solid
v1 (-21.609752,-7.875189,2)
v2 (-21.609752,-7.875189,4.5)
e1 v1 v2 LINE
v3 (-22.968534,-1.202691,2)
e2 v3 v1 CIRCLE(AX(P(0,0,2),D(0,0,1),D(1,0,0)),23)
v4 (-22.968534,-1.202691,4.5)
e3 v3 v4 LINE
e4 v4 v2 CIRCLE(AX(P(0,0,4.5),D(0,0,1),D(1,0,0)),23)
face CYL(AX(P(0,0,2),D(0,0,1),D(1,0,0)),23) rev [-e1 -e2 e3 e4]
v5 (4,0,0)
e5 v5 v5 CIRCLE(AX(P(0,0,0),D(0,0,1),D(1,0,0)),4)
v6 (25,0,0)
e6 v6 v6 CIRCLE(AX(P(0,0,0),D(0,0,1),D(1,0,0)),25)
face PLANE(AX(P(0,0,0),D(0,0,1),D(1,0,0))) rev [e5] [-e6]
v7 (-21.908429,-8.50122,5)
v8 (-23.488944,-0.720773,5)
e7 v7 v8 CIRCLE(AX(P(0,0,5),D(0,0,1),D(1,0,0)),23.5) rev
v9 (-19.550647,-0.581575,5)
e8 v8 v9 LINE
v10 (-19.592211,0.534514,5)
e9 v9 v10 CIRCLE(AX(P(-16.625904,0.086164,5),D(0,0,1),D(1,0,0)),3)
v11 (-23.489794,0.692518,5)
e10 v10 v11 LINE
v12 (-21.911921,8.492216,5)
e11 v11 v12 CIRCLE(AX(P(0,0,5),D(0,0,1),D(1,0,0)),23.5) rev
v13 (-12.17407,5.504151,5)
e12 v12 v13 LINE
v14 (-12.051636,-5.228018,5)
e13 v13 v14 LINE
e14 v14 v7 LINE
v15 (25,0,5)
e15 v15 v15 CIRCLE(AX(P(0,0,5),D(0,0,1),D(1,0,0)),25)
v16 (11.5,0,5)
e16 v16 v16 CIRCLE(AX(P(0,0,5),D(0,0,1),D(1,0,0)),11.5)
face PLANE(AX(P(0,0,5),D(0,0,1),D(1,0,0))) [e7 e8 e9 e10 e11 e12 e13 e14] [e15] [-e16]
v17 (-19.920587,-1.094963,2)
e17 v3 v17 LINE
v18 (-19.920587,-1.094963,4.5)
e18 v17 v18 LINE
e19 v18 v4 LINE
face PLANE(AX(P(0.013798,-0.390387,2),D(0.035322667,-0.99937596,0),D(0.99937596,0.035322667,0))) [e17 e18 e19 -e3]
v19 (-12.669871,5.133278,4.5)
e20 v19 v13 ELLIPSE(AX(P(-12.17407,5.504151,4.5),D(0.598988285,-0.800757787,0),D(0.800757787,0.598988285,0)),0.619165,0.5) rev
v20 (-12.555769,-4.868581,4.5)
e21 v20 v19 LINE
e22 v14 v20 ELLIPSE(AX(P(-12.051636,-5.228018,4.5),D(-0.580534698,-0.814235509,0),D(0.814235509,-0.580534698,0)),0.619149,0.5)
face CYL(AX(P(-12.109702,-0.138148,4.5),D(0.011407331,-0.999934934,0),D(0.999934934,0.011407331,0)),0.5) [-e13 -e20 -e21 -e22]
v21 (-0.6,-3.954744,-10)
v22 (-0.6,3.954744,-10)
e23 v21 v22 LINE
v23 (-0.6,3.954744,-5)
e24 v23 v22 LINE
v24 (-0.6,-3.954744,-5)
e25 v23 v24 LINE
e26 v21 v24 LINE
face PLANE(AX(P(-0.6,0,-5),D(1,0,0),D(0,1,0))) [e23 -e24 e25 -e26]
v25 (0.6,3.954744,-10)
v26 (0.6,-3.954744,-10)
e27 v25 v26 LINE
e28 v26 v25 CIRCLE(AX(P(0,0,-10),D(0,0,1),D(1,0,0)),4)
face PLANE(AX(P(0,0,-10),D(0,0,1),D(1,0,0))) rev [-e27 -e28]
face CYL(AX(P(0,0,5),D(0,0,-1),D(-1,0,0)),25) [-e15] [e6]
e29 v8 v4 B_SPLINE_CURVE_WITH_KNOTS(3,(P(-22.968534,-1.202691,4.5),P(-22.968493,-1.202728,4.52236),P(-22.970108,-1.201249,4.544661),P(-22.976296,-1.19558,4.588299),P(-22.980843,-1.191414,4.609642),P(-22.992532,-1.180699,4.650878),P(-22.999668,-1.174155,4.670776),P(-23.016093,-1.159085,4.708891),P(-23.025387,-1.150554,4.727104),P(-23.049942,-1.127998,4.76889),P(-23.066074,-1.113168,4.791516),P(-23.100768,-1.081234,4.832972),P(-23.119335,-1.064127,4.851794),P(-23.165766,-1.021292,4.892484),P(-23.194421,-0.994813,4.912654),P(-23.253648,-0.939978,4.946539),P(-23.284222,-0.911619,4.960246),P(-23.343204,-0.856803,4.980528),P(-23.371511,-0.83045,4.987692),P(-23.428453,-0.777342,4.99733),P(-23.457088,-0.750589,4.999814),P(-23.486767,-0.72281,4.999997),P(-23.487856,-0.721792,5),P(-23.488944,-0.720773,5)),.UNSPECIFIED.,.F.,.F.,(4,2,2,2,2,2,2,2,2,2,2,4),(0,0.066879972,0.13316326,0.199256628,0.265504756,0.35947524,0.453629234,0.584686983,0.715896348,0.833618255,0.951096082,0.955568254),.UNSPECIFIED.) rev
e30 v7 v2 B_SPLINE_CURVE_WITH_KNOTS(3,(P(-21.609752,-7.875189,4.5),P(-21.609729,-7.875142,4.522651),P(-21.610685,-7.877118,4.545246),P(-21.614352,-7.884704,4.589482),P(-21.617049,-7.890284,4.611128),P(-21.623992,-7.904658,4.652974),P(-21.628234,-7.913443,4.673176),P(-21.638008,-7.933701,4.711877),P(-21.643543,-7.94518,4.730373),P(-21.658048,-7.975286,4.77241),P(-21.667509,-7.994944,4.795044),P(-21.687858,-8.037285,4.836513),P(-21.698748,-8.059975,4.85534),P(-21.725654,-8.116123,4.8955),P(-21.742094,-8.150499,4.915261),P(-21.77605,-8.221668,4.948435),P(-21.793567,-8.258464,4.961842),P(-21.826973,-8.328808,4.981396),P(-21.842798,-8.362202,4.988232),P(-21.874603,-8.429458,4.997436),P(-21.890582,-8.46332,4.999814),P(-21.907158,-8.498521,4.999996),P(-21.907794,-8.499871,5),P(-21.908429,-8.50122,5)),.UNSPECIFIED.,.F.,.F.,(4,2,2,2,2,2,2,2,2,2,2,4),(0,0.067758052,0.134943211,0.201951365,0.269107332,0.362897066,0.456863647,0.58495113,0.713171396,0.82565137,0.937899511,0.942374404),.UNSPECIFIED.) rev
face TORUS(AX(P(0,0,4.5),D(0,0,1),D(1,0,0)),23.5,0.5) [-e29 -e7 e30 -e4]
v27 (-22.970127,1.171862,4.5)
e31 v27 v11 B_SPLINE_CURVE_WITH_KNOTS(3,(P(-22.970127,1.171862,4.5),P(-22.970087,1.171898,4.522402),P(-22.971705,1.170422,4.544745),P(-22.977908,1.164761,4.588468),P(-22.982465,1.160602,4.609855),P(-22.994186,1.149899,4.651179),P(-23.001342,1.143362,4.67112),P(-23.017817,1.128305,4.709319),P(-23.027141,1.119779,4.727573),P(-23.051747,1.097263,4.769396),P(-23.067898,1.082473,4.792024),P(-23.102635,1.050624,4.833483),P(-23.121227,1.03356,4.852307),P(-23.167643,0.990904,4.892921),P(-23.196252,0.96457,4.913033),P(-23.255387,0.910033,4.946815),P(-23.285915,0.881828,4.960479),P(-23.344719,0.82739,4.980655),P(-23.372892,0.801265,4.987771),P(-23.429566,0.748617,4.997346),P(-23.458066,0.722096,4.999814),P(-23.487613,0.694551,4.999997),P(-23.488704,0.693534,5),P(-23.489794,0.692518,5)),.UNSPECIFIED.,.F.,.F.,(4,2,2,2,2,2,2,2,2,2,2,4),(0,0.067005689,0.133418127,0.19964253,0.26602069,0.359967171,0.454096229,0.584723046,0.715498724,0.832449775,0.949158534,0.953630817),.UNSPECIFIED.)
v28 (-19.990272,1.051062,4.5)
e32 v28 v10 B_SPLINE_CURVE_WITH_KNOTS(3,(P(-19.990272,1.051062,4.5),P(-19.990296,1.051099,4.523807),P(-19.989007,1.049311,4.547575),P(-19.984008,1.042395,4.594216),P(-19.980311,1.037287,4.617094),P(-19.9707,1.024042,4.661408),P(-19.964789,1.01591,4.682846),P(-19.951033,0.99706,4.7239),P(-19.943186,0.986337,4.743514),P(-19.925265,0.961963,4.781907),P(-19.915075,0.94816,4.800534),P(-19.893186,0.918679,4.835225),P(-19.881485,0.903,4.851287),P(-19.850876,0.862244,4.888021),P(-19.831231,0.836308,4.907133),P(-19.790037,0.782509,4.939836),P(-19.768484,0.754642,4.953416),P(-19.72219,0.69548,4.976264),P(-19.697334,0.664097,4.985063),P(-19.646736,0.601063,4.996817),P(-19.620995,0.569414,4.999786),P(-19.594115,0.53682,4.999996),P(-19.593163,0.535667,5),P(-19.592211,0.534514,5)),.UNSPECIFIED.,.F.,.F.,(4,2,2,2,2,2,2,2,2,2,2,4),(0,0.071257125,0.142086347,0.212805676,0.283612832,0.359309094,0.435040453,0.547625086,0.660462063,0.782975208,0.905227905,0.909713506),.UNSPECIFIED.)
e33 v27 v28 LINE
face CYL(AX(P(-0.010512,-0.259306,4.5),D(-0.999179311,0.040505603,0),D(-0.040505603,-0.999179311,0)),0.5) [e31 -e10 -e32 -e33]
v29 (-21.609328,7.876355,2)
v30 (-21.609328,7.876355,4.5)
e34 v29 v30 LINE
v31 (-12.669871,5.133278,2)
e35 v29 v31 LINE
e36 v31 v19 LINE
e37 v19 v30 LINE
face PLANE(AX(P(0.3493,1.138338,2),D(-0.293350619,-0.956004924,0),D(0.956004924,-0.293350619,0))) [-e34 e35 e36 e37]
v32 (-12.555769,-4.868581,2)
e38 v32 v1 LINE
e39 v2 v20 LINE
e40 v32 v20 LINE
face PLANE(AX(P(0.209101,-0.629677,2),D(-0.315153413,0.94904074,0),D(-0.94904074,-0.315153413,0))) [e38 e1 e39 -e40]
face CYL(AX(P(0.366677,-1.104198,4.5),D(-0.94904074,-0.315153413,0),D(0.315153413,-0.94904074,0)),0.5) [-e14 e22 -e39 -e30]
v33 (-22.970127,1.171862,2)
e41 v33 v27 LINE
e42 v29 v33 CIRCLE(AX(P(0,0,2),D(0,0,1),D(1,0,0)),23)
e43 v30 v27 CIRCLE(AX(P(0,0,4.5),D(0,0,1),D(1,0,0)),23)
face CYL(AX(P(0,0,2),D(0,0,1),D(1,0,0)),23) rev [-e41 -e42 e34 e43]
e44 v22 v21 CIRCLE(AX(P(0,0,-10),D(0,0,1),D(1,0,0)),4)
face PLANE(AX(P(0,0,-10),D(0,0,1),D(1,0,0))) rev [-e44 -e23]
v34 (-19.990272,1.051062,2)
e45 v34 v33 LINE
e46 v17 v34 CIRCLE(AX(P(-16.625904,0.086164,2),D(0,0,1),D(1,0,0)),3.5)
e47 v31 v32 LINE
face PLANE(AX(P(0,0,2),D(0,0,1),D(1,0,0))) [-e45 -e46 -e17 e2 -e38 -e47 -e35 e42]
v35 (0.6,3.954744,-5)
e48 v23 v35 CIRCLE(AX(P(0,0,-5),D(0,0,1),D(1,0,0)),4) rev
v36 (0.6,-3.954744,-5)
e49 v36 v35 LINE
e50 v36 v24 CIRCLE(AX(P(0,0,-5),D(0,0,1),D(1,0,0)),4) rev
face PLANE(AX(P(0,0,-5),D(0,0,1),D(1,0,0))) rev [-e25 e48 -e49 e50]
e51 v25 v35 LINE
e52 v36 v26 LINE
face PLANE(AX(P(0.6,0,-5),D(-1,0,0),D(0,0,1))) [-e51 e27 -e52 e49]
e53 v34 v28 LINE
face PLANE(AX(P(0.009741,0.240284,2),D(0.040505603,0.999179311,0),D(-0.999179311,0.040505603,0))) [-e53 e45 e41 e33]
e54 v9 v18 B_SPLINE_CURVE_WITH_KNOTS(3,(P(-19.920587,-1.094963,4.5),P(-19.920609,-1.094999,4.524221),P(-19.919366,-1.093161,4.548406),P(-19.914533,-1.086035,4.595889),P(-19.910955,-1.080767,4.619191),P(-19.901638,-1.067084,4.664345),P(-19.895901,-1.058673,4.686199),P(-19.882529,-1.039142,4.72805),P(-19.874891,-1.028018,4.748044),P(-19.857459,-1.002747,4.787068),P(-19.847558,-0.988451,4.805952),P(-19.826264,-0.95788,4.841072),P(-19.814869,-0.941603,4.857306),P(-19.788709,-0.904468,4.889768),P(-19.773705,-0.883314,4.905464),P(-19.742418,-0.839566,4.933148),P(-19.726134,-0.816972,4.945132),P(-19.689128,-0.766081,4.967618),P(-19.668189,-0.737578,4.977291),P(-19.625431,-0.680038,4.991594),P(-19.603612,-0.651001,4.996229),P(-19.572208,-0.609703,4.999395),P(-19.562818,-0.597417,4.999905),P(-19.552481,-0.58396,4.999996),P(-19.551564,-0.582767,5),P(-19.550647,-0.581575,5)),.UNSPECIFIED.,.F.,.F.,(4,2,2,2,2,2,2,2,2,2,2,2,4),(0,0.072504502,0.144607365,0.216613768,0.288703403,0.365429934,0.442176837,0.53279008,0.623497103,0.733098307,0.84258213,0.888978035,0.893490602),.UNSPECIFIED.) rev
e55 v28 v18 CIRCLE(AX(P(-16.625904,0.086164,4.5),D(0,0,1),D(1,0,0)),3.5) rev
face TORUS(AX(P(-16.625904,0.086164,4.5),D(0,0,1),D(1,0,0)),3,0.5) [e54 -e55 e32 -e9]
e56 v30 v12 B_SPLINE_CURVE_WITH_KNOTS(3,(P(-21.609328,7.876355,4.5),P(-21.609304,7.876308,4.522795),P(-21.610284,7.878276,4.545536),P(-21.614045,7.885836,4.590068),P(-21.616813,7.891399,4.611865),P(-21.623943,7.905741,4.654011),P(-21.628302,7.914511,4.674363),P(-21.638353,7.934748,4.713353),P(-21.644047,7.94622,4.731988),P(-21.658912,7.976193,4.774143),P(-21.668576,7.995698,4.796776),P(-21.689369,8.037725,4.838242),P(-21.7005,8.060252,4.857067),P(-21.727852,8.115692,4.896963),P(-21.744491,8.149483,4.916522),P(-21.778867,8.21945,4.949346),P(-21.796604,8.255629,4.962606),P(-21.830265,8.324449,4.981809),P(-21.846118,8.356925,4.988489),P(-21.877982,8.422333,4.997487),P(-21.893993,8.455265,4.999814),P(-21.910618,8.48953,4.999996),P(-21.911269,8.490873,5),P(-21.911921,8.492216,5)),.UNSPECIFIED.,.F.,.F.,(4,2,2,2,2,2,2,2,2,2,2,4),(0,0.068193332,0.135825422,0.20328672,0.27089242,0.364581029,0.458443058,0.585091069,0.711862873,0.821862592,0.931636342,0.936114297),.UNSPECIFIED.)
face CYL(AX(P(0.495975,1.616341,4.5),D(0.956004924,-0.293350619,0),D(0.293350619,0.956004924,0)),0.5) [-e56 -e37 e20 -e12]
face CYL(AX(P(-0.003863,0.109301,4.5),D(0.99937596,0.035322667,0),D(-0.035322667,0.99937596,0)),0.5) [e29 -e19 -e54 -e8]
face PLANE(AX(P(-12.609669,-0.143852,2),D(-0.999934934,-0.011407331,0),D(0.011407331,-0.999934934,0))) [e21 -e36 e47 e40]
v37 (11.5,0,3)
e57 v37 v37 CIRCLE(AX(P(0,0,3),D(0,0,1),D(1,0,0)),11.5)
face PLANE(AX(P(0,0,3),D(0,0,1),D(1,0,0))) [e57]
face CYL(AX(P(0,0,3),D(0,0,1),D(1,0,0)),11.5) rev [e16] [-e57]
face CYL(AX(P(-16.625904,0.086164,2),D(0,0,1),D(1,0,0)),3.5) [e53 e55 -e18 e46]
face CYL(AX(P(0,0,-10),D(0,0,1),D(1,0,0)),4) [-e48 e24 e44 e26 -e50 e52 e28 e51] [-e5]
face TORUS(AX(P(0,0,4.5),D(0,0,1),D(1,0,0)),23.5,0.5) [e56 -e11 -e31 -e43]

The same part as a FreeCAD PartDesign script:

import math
import FreeCAD as App
import Part
import Sketcher
from FreeCAD import Vector


def edges_at(feature, points):
    """Names of the edges that pass closest to the given points."""
    edges = feature.Shape.Edges
    near = lambda p: min(range(len(edges)), key=lambda i: edges[i].distToShape(Part.Vertex(*p))[0])
    return sorted({f"Edge{near(p) + 1}" for p in points})


def add_polygon(sketch, points):
    """Adds a closed chain of lines whose ends are joined by coincident constraints."""
    first, n = sketch.GeometryCount, len(points)
    for a, b in zip(points, points[1:] + points[:1]):
        sketch.addGeometry(Part.LineSegment(App.Vector(*a, 0), App.Vector(*b, 0)), False)
    for i in range(n):
        sketch.addConstraint(Sketcher.Constraint("Coincident", first + i, 2, first + (i + 1) % n, 1))

doc = App.newDocument("Part")
body = doc.addObject("PartDesign::Body", "Body")

sketch1 = doc.addObject("Sketcher::SketchObject", "Sketch")
body.addObject(sketch1)
sketch1.AttachmentSupport = (doc.XY_Plane, [""])
sketch1.MapMode = "FlatFace"
sketch1.addGeometry(Part.Circle(Vector(0, 0, 0), Vector(0, 0, 1), 25), False)
sketch1.addConstraint(Sketcher.Constraint("Coincident", 0, 3, -1, 1))
sketch1.addConstraint(Sketcher.Constraint("Diameter", 0, 50.0))
pad1 = doc.addObject("PartDesign::Pad", "Pad")
body.addObject(pad1)
pad1.Profile = sketch1
pad1.Length = 5

sketch2 = doc.addObject("Sketcher::SketchObject", "Sketch001")
body.addObject(sketch2)
sketch2.AttachmentSupport = (doc.XY_Plane, [""])
sketch2.MapMode = "FlatFace"
sketch2.AttachmentOffset = App.Placement(Vector(0, 0, 5), App.Rotation())
sketch2.addGeometry(Part.LineSegment(Vector(-19.920587, -1.094963, 0), Vector(-22.968534, -1.202691, 0)), False)
sketch2.addGeometry(Part.ArcOfCircle(Part.Circle(Vector(0, 0, 0), Vector(0, 0, 1), 23), math.radians(-177.002583), math.radians(-159.976866)), False)
sketch2.addGeometry(Part.LineSegment(Vector(-21.609752, -7.875189, 0), Vector(-12.555769, -4.868581, 0)), False)
sketch2.addGeometry(Part.LineSegment(Vector(-12.555769, -4.868581, 0), Vector(-12.669871, 5.133278, 0)), False)
sketch2.addGeometry(Part.LineSegment(Vector(-12.669871, 5.133278, 0), Vector(-21.609328, 7.876355, 0)), False)
sketch2.addGeometry(Part.ArcOfCircle(Part.Circle(Vector(0, 0, 0), Vector(0, 0, 1), 23), math.radians(159.973776), math.radians(177.079486)), False)
sketch2.addGeometry(Part.LineSegment(Vector(-22.970127, 1.171862, 0), Vector(-19.990272, 1.051062, 0)), False)
sketch2.addGeometry(Part.ArcOfCircle(Part.Circle(Vector(-16.625904, 0.086164, 0), Vector(0, 0, 1), 3.5), math.radians(-160.277512), math.radians(163.997157)), False)
sketch2.addConstraint(Sketcher.Constraint("Coincident", 0, 2, 1, 1))
sketch2.addConstraint(Sketcher.Constraint("Coincident", 1, 2, 2, 1))
sketch2.addConstraint(Sketcher.Constraint("Coincident", 2, 2, 3, 1))
sketch2.addConstraint(Sketcher.Constraint("Coincident", 3, 2, 4, 1))
sketch2.addConstraint(Sketcher.Constraint("Coincident", 4, 2, 5, 1))
sketch2.addConstraint(Sketcher.Constraint("Coincident", 5, 2, 6, 1))
sketch2.addConstraint(Sketcher.Constraint("Coincident", 6, 2, 7, 2))
sketch2.addConstraint(Sketcher.Constraint("Coincident", 7, 1, 0, 1))
sketch2.addConstraint(Sketcher.Constraint("Coincident", 1, 3, -1, 1))
sketch2.addConstraint(Sketcher.Constraint("Coincident", 5, 3, -1, 1))
sketch2.addConstraint(Sketcher.Constraint("Equal", 1, 5))
sketch2.addConstraint(Sketcher.Constraint("Radius", 1, 23.0))
sketch2.addConstraint(Sketcher.Constraint("Radius", 7, 3.5))
sketch2.addConstraint(Sketcher.Constraint("DistanceX", 3, 2, 2, 2, 0.114102))
sketch2.addConstraint(Sketcher.Constraint("DistanceX", 5, 2, 4, 2, 1.3608))
sketch2.addConstraint(Sketcher.Constraint("DistanceY", 6, 2, 5, 2, 0.1208))
sketch2.addConstraint(Sketcher.Constraint("DistanceX", 6, 2, 3, 2, 7.3204))
sketch2.addConstraint(Sketcher.Constraint("Distance", 0, 3.04985))
sketch2.addConstraint(Sketcher.Constraint("Distance", 2, 9.540142))
sketch2.addConstraint(Sketcher.Constraint("Distance", 3, 10.00251))
sketch2.addConstraint(Sketcher.Constraint("DistanceY", 0, 2, -1, 1, 1.202691))
sketch2.addConstraint(Sketcher.Constraint("DistanceY", 1, 2, -1, 1, 7.875189))
sketch2.addConstraint(Sketcher.Constraint("DistanceX", 2, 2, -1, 1, 12.555769))
sketch2.addConstraint(Sketcher.Constraint("DistanceY", -1, 1, 5, 2, 1.171862))
sketch2.addConstraint(Sketcher.Constraint("DistanceX", 0, 2, 7, 3, 6.34263))
pocket1 = doc.addObject("PartDesign::Pocket", "Pocket")
body.addObject(pocket1)
pocket1.Profile = sketch2
pocket1.Length = 3

sketch3 = doc.addObject("Sketcher::SketchObject", "Sketch002")
body.addObject(sketch3)
sketch3.AttachmentSupport = (doc.XY_Plane, [""])
sketch3.MapMode = "FlatFace"
sketch3.AttachmentOffset = App.Placement(Vector(0, 0, 5), App.Rotation())
sketch3.addGeometry(Part.Circle(Vector(0, 0, 0), Vector(0, 0, 1), 11.5), False)
sketch3.addConstraint(Sketcher.Constraint("Coincident", 0, 3, -1, 1))
sketch3.addConstraint(Sketcher.Constraint("Diameter", 0, 23.0))
pocket2 = doc.addObject("PartDesign::Pocket", "Pocket001")
body.addObject(pocket2)
pocket2.Profile = sketch3
pocket2.Length = 2

sketch4 = doc.addObject("Sketcher::SketchObject", "Sketch003")
body.addObject(sketch4)
sketch4.AttachmentSupport = (doc.XY_Plane, [""])
sketch4.MapMode = "FlatFace"
sketch4.addGeometry(Part.Circle(Vector(0, 0, 0), Vector(0, 0, 1), 4), False)
sketch4.addConstraint(Sketcher.Constraint("Coincident", 0, 3, -1, 1))
sketch4.addConstraint(Sketcher.Constraint("Diameter", 0, 8.0))
pad2 = doc.addObject("PartDesign::Pad", "Pad001")
body.addObject(pad2)
pad2.Profile = sketch4
pad2.Length = 10
pad2.Reversed = True

sketch5 = doc.addObject("Sketcher::SketchObject", "Sketch004")
body.addObject(sketch5)
sketch5.AttachmentSupport = (doc.XY_Plane, [""])
sketch5.MapMode = "FlatFace"
sketch5.AttachmentOffset = App.Placement(Vector(0, 0, -10), App.Rotation())
add_polygon(sketch5, [(-0.6, 5), (-0.6, -5), (0.6, -5), (0.6, 5)])
sketch5.addConstraint(Sketcher.Constraint("Vertical", 0))
sketch5.addConstraint(Sketcher.Constraint("Horizontal", 1))
sketch5.addConstraint(Sketcher.Constraint("Vertical", 2))
sketch5.addConstraint(Sketcher.Constraint("Horizontal", 3))
sketch5.addConstraint(Sketcher.Constraint("Symmetric", 0, 2, 2, 2, -1, 1))
sketch5.addConstraint(Sketcher.Constraint("DistanceY", 0, 2, 0, 1, 10.0))
sketch5.addConstraint(Sketcher.Constraint("DistanceX", 1, 1, 1, 2, 1.2))
pocket3 = doc.addObject("PartDesign::Pocket", "Pocket002")
body.addObject(pocket3)
pocket3.Profile = sketch5
pocket3.Length = 5
pocket3.Reversed = True
doc.recompute()

fillet = doc.addObject("PartDesign::Fillet", "Fillet")
body.addObject(fillet)
fillet.Base = (pocket3, edges_at(pocket3, [
    (-17.083, -6.372, 5),
    (-21.445, -1.149, 5),
    (-13.128, 0.2, 5),
    (-21.48, 1.111, 5),
    (-22.54, 4.575, 5),
    (-22.537, -4.59, 5),
    (-17.14, 6.505, 5),
    (-12.613, 0.132, 5),
]))
fillet.Radius = 0.5

doc.recompute()
